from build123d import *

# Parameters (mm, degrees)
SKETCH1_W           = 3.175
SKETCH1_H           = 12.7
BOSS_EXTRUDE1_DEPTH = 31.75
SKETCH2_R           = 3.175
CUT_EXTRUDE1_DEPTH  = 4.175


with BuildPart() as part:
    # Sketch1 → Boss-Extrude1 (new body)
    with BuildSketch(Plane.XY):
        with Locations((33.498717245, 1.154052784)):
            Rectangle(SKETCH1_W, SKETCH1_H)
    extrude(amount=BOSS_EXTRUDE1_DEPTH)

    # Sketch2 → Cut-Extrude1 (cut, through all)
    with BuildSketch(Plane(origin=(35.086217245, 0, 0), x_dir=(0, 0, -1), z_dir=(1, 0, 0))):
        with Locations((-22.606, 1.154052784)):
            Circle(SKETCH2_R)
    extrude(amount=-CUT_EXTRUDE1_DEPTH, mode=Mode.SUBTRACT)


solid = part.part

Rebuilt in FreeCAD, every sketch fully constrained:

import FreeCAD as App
import Part
import Sketcher
from FreeCAD import Vector
Q = App.Units.Quantity


def add_polygon(sketch, points):
    """Adds a closed chain of lines whose ends are joined by coincident constraints."""
    first, n = sketch.GeometryCount, len(points)
    for a, b in zip(points, points[1:] + points[:1]):
        sketch.addGeometry(Part.LineSegment(App.Vector(*a, 0), App.Vector(*b, 0)), False)
    for i in range(n):
        sketch.addConstraint(Sketcher.Constraint("Coincident", first + i, 2, first + (i + 1) % n, 1))

doc = App.newDocument("Part")
params = doc.addObject("Spreadsheet::Sheet", "Params")
for row, (alias, value) in enumerate([
    ("sketch1_height", "0.5 in"),
    ("sketch1_width", "0.125 in"),
    ("pad1_length", "1.25 in"),
    ("sketch2_diameter", "0.25 in"),
], start=1):
    params.set(f"A{row}", alias)
    params.set(f"B{row}", "=" + value)
    params.setAlias(f"B{row}", alias)

body = doc.addObject("PartDesign::Body", "Body")

# Sketch on XY plane
sketch1 = doc.addObject("Sketcher::SketchObject", "Sketch")
body.addObject(sketch1)
sketch1.AttachmentSupport = (doc.XY_Plane, [""])
sketch1.MapMode = "FlatFace"
add_polygon(sketch1, [(31.9, 7.5), (31.9, -5.2), (35.1, -5.2), (35.1, 7.5)])  # lines 0-3
sketch1.addConstraint([
    Sketcher.Constraint("Vertical", 0),
    Sketcher.Constraint("Horizontal", 1),
    Sketcher.Constraint("Vertical", 2),
    Sketcher.Constraint("Horizontal", 3),
    Sketcher.Constraint("DistanceY", 0, 2, 0, 1, Q("0.5 in")),
    Sketcher.Constraint("DistanceX", 1, 1, 1, 2, Q("0.125 in")),
    Sketcher.Constraint("DistanceX", -1, 1, 0, 2, Q("31.911217 mm")),
    Sketcher.Constraint("DistanceY", 0, 2, -1, 1, Q("5.195947 mm")),
])
sketch1.setExpression("Constraints[8]", "Params.sketch1_height")
sketch1.setExpression("Constraints[9]", "Params.sketch1_width")
pad1 = doc.addObject("PartDesign::Pad", "Pad")
body.addObject(pad1)
pad1.Profile = sketch1
pad1.setExpression("Length", "Params.pad1_length")

# Sketch on YZ plane
sketch2 = doc.addObject("Sketcher::SketchObject", "Sketch001")
body.addObject(sketch2)
sketch2.AttachmentSupport = (doc.YZ_Plane, [""])
sketch2.MapMode = "FlatFace"
sketch2.AttachmentOffset = App.Placement(Vector(0, 0, 35.086217), App.Rotation())
sketch2.addGeometry(Part.Circle(Vector(1.2, 22.6, 0), Vector(0, 0, 1), 3.2), False)
sketch2.addConstraint([
    Sketcher.Constraint("Diameter", 0, Q("0.25 in")),
    Sketcher.Constraint("DistanceY", -1, 1, 0, 3, Q("0.89 in")),
    Sketcher.Constraint("DistanceX", -1, 1, 0, 3, Q("1.154053 mm")),
])
sketch2.setExpression("Constraints[0]", "Params.sketch2_diameter")
pocket1 = doc.addObject("PartDesign::Pocket", "Pocket")
body.addObject(pocket1)
pocket1.Profile = sketch2
pocket1.Type = "ThroughAll"

doc.recompute()
